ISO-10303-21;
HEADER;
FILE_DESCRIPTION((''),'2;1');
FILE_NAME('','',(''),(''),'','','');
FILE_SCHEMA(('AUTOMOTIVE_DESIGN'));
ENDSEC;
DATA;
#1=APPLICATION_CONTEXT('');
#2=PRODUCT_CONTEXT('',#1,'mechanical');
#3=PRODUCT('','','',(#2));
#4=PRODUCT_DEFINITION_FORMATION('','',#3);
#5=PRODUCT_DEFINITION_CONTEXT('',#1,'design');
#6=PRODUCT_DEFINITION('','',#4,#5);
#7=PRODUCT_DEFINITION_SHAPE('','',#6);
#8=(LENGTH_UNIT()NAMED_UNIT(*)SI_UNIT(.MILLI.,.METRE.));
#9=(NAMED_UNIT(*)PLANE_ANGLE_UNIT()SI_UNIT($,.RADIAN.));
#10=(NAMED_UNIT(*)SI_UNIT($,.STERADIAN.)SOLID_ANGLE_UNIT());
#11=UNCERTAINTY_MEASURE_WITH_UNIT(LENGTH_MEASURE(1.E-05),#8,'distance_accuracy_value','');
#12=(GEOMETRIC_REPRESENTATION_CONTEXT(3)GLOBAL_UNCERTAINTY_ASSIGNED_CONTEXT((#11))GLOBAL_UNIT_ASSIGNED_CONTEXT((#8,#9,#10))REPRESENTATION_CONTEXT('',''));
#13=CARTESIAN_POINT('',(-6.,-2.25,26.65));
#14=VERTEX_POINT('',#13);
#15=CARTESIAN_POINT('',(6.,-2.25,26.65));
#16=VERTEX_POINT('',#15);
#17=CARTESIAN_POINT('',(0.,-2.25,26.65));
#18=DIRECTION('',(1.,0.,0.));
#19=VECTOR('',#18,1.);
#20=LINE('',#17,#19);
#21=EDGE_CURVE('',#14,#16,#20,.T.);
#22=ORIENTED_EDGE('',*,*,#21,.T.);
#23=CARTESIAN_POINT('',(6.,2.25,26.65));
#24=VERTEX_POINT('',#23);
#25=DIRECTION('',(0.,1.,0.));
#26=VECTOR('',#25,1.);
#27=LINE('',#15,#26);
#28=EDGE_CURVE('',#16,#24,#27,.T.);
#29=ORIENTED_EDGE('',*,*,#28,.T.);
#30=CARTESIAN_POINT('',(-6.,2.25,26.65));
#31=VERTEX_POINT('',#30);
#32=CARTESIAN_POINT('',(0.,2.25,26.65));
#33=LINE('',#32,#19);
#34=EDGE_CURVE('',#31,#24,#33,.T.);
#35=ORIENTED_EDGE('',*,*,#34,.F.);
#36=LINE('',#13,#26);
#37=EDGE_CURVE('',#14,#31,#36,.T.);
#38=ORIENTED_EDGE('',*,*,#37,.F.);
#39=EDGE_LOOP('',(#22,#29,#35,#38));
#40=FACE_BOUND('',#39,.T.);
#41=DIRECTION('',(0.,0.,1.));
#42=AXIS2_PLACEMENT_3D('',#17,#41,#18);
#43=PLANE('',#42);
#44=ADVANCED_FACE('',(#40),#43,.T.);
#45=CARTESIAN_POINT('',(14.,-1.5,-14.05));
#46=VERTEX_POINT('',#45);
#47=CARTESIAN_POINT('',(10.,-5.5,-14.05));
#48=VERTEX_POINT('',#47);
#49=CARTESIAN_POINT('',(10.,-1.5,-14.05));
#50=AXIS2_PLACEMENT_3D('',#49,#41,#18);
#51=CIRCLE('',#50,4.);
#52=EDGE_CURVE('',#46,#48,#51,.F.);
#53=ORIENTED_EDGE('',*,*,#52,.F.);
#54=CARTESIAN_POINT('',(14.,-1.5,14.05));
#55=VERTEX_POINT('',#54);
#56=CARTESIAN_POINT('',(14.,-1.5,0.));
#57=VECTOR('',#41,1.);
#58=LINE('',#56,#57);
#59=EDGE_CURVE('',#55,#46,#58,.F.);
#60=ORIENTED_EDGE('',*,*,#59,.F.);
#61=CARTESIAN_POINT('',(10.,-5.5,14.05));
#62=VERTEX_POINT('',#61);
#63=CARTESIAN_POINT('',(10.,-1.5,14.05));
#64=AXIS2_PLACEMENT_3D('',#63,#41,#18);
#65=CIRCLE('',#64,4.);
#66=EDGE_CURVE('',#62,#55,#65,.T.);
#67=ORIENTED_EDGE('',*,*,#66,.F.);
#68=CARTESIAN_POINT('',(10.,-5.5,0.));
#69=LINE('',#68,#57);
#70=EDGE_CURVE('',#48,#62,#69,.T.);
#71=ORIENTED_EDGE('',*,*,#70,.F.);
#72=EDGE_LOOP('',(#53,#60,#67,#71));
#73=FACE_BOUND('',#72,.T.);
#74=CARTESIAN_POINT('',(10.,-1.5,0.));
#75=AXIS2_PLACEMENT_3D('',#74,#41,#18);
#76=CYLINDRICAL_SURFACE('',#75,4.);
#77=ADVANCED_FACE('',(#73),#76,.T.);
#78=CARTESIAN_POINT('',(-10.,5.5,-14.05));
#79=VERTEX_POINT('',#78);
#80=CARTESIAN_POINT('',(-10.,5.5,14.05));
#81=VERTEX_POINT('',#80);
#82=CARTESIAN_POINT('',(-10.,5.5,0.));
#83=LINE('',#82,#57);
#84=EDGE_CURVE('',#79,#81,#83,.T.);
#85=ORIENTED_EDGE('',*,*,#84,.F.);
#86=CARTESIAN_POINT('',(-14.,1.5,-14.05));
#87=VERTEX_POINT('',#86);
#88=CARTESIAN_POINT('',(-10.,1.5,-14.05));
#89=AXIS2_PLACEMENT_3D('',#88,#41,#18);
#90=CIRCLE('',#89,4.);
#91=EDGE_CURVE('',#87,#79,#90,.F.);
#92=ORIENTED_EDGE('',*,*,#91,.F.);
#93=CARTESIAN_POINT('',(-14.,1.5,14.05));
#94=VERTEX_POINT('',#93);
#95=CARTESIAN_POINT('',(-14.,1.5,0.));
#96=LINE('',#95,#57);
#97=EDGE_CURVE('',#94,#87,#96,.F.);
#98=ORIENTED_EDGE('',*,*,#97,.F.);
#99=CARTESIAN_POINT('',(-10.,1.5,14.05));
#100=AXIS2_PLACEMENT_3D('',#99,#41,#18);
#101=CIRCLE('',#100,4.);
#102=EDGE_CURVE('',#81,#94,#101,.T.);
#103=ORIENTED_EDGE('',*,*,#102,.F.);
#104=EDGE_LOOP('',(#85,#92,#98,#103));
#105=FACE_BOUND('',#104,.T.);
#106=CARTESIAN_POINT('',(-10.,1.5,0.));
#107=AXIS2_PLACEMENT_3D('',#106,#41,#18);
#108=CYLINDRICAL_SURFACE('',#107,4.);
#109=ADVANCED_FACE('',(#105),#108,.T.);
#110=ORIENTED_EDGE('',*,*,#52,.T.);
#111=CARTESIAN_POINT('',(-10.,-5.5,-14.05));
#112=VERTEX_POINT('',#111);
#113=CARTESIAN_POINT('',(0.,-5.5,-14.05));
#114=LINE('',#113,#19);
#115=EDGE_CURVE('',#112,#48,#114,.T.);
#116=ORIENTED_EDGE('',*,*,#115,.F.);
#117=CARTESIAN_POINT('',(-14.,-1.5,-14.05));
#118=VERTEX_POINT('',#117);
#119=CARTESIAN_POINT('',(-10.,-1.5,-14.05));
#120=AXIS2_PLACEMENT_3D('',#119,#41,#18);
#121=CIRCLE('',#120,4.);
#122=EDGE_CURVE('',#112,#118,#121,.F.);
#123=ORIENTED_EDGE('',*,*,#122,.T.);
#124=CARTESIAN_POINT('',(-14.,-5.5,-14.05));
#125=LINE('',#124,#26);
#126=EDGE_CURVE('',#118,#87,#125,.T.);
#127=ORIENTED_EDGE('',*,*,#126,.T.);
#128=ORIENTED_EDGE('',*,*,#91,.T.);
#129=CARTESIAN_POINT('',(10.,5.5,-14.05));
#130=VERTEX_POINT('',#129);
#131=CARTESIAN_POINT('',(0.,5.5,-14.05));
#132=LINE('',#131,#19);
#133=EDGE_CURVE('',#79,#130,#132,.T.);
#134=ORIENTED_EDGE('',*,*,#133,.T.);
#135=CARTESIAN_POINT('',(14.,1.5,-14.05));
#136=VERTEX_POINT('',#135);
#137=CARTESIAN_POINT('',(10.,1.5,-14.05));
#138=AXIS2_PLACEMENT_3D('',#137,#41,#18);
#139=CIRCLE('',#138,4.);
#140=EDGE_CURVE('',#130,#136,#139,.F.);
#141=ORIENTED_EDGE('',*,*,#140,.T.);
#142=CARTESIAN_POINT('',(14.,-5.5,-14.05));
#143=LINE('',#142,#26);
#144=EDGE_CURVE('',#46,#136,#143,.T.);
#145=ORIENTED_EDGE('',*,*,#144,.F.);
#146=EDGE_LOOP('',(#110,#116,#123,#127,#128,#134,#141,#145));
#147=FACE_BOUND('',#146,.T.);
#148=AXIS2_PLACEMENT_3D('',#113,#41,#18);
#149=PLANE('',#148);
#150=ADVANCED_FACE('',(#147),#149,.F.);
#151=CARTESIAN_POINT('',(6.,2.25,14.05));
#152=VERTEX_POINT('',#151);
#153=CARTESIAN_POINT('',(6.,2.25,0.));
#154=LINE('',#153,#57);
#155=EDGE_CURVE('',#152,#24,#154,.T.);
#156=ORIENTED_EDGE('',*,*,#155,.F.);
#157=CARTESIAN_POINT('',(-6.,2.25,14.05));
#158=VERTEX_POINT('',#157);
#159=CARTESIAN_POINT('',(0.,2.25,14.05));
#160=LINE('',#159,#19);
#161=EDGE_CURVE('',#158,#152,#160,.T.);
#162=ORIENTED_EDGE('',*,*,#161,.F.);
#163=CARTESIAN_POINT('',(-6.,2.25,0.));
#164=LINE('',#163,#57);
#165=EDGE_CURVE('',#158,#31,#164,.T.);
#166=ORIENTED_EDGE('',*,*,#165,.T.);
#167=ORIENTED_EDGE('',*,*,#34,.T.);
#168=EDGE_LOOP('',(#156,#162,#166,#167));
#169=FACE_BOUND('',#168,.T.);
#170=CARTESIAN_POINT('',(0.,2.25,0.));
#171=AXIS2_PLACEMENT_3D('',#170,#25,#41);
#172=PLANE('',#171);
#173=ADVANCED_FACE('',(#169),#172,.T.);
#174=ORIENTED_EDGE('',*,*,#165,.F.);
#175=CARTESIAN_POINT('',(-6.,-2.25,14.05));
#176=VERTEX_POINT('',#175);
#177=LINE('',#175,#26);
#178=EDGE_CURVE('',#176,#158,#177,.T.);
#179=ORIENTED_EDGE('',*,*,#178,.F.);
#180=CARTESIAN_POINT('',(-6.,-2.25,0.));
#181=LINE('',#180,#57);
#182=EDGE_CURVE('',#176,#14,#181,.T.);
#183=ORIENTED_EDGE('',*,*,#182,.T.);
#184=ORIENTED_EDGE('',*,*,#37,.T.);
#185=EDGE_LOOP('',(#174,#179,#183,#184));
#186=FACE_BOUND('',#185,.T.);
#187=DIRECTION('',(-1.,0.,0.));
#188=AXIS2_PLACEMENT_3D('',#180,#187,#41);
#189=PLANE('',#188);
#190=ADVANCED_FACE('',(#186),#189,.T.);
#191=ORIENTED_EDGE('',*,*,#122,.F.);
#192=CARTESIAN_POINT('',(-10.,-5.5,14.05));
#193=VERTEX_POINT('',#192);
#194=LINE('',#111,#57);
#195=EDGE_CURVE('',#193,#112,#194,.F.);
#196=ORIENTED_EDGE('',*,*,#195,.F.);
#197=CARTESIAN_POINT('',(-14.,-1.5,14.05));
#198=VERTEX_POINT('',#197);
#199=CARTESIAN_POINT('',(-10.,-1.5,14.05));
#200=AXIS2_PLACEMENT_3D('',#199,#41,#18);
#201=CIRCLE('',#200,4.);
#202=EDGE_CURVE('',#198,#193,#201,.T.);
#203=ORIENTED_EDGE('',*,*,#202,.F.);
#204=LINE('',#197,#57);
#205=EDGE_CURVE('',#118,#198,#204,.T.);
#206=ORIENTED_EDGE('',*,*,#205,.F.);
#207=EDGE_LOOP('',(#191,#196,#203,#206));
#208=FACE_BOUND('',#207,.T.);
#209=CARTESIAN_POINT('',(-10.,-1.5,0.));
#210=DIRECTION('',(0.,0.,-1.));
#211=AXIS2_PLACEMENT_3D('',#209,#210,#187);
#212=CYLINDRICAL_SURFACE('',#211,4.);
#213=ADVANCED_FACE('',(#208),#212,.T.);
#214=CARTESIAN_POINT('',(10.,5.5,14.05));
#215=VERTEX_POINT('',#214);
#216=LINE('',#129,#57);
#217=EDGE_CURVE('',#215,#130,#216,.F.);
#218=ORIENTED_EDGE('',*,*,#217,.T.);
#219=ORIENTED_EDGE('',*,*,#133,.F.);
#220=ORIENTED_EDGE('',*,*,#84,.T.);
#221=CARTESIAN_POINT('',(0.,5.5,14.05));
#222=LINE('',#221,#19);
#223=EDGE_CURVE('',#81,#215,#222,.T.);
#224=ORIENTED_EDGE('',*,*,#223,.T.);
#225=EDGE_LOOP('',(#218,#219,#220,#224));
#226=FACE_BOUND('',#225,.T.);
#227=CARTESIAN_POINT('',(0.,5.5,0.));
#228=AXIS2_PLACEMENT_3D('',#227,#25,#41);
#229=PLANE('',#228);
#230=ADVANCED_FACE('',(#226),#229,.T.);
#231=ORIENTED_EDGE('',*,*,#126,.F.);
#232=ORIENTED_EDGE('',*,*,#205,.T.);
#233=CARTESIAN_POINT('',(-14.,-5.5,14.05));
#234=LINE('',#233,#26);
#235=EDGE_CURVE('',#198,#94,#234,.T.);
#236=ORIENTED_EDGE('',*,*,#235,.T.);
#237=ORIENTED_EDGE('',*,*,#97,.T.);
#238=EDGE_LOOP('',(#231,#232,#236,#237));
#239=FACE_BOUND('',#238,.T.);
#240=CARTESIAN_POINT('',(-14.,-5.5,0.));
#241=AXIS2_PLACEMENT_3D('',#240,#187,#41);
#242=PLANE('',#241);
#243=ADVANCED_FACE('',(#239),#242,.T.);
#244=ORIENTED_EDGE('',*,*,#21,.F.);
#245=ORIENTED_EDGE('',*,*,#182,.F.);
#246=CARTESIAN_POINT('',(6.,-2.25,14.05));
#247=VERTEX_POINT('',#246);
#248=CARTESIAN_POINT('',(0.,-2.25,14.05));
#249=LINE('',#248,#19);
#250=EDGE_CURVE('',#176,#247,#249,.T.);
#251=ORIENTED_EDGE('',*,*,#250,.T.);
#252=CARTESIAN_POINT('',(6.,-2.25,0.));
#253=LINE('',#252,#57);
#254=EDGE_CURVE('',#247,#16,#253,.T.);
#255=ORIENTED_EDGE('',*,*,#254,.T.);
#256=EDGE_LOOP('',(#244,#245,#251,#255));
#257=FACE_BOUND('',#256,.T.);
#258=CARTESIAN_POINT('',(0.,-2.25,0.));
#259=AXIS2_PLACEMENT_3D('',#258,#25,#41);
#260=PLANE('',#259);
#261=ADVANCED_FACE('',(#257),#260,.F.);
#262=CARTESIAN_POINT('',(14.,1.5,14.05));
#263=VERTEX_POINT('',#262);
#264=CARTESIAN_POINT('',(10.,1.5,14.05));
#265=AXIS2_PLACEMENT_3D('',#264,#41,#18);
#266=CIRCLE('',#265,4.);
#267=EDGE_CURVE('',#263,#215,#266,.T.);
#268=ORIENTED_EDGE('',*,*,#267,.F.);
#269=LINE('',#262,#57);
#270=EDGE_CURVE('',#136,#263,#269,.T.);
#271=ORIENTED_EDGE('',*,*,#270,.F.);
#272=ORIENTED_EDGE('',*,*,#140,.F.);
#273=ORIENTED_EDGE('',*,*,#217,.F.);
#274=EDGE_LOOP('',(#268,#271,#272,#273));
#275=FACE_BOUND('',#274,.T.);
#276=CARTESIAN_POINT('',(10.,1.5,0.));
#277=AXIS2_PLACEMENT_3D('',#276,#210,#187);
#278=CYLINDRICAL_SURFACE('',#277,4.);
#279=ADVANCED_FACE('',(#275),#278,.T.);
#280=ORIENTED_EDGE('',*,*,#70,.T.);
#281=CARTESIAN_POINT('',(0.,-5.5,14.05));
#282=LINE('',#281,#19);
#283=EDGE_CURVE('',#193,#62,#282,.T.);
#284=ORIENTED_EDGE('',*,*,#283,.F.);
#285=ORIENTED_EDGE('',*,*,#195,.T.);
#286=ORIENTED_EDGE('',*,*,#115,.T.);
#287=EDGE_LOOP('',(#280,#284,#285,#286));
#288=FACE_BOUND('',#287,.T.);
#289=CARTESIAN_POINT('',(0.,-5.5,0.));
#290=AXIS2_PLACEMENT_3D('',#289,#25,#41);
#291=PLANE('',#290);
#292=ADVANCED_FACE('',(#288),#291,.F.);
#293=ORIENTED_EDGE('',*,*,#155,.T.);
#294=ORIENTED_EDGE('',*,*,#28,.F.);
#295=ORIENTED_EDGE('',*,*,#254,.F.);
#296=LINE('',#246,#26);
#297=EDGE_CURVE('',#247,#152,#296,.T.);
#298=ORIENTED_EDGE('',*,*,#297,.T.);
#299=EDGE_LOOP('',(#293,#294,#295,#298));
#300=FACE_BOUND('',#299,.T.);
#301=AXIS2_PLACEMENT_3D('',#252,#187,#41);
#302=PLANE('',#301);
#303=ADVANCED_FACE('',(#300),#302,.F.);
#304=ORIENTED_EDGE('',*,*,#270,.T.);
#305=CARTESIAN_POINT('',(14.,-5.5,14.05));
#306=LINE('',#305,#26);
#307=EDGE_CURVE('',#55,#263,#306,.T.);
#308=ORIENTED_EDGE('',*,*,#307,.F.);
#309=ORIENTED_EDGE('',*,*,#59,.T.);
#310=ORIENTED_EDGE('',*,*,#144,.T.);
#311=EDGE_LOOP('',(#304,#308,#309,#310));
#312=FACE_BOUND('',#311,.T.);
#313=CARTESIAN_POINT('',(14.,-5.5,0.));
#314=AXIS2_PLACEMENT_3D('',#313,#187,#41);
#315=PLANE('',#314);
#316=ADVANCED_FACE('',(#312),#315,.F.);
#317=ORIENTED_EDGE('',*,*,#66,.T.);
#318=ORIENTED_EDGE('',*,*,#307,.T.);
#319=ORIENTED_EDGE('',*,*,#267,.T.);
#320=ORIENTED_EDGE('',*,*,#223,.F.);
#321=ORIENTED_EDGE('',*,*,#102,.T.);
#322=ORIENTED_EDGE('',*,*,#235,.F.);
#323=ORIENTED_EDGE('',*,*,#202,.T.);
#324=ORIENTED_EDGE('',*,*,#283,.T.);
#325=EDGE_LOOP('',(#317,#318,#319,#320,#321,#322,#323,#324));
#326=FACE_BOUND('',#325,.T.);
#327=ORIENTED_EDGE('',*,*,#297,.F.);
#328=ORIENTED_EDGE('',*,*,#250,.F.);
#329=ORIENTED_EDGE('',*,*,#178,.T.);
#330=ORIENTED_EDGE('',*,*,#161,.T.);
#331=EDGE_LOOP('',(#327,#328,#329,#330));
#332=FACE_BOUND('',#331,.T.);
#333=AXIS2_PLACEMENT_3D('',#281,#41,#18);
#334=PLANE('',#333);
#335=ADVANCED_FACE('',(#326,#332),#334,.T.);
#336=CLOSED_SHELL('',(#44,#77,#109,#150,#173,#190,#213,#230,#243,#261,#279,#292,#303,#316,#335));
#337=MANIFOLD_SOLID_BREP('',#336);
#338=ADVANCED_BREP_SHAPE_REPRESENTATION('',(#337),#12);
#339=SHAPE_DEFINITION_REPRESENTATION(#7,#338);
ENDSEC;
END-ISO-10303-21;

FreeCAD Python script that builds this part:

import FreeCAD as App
import Part
import Sketcher
from FreeCAD import Vector


def edges_at(feature, points):
    """Names of the edges that pass closest to the given points."""
    edges = feature.Shape.Edges
    near = lambda p: min(range(len(edges)), key=lambda i: edges[i].distToShape(Part.Vertex(*p))[0])
    return sorted({f"Edge{near(p) + 1}" for p in points})


def add_polygon(sketch, points):
    """Adds a closed chain of lines whose ends are joined by coincident constraints."""
    first, n = sketch.GeometryCount, len(points)
    for a, b in zip(points, points[1:] + points[:1]):
        sketch.addGeometry(Part.LineSegment(App.Vector(*a, 0), App.Vector(*b, 0)), False)
    for i in range(n):
        sketch.addConstraint(Sketcher.Constraint("Coincident", first + i, 2, first + (i + 1) % n, 1))

doc = App.newDocument("Part")
params = doc.addObject("Spreadsheet::Sheet", "Params")
for row, (alias, value) in enumerate([
    ("sketch1_width", "28 mm"),
    ("sketch1_height", "28.1 mm"),
    ("pad1_length", "5.5 mm"),
    ("pad1_length2", "5.5 mm"),
    ("sketch2_width", "12 mm"),
    ("sketch2_height", "12.6 mm"),
    ("pad2_length", "2.25 mm"),
    ("pad2_length2", "2.25 mm"),
    ("fillet_radius", "4 mm"),
], start=1):
    params.set(f"A{row}", alias)
    params.set(f"B{row}", "=" + value)
    params.setAlias(f"B{row}", alias)

body = doc.addObject("PartDesign::Body", "Body")

# Sketch on XZ plane
sketch1 = body.newObject("Sketcher::SketchObject", "Sketch")
sketch1.AttachmentSupport = (doc.getObject("XZ_Plane"), [""])
sketch1.MapMode = "FlatFace"
add_polygon(sketch1, [(-14, -14), (-14, 14), (14, 14), (14, -14)])  # lines 0-3
sketch1.addConstraint([
    Sketcher.Constraint("Vertical", 0),
    Sketcher.Constraint("Horizontal", 1),
    Sketcher.Constraint("Vertical", 2),
    Sketcher.Constraint("Horizontal", 3),
    Sketcher.Constraint("Symmetric", 0, 2, 2, 2, -1, 1),
    Sketcher.Constraint("DistanceX", 1, 1, 1, 2, 28.0),
    Sketcher.Constraint("DistanceY", 0, 1, 0, 2, 28.1),
])
sketch1.setExpression("Constraints[9]", "Params.sketch1_width")
sketch1.setExpression("Constraints[10]", "Params.sketch1_height")
pad1 = body.newObject("PartDesign::Pad", "Pad")
pad1.Profile = sketch1
pad1.Type = "TwoLengths"
pad1.setExpression("Length", "Params.pad1_length")
pad1.setExpression("Length2", "Params.pad1_length2")
pad1.Reversed = True

# Sketch on XZ plane
sketch2 = body.newObject("Sketcher::SketchObject", "Sketch001")
sketch2.AttachmentSupport = (doc.getObject("XZ_Plane"), [""])
sketch2.MapMode = "FlatFace"
add_polygon(sketch2, [(-6, 14), (-6, 27), (6, 27), (6, 14)])  # lines 0-3
sketch2.addConstraint([
    Sketcher.Constraint("Vertical", 0),
    Sketcher.Constraint("Horizontal", 1),
    Sketcher.Constraint("Vertical", 2),
    Sketcher.Constraint("Horizontal", 3),
    Sketcher.Constraint("DistanceX", 1, 1, 1, 2, 12.0),
    Sketcher.Constraint("DistanceY", 0, 1, 0, 2, 12.6),
    Sketcher.Constraint("DistanceX", 0, 2, -1, 1, 6.0),
    Sketcher.Constraint("DistanceY", -1, 1, 0, 2, 26.65),
])
sketch2.setExpression("Constraints[8]", "Params.sketch2_width")
sketch2.setExpression("Constraints[9]", "Params.sketch2_height")
pad2 = body.newObject("PartDesign::Pad", "Pad001")
pad2.Profile = sketch2
pad2.Type = "TwoLengths"
pad2.setExpression("Length", "Params.pad2_length")
pad2.setExpression("Length2", "Params.pad2_length2")
pad2.Reversed = True
doc.recompute()

fillet = body.newObject("PartDesign::Fillet", "Fillet")
fillet.Base = (pad2, edges_at(pad2, [
    (14, 5.5, 0),
    (-14, 5.5, 0),
    (-14, -5.5, 0),
    (14, -5.5, 0),
]))
fillet.setExpression("Radius", "Params.fillet_radius")

doc.recompute()
